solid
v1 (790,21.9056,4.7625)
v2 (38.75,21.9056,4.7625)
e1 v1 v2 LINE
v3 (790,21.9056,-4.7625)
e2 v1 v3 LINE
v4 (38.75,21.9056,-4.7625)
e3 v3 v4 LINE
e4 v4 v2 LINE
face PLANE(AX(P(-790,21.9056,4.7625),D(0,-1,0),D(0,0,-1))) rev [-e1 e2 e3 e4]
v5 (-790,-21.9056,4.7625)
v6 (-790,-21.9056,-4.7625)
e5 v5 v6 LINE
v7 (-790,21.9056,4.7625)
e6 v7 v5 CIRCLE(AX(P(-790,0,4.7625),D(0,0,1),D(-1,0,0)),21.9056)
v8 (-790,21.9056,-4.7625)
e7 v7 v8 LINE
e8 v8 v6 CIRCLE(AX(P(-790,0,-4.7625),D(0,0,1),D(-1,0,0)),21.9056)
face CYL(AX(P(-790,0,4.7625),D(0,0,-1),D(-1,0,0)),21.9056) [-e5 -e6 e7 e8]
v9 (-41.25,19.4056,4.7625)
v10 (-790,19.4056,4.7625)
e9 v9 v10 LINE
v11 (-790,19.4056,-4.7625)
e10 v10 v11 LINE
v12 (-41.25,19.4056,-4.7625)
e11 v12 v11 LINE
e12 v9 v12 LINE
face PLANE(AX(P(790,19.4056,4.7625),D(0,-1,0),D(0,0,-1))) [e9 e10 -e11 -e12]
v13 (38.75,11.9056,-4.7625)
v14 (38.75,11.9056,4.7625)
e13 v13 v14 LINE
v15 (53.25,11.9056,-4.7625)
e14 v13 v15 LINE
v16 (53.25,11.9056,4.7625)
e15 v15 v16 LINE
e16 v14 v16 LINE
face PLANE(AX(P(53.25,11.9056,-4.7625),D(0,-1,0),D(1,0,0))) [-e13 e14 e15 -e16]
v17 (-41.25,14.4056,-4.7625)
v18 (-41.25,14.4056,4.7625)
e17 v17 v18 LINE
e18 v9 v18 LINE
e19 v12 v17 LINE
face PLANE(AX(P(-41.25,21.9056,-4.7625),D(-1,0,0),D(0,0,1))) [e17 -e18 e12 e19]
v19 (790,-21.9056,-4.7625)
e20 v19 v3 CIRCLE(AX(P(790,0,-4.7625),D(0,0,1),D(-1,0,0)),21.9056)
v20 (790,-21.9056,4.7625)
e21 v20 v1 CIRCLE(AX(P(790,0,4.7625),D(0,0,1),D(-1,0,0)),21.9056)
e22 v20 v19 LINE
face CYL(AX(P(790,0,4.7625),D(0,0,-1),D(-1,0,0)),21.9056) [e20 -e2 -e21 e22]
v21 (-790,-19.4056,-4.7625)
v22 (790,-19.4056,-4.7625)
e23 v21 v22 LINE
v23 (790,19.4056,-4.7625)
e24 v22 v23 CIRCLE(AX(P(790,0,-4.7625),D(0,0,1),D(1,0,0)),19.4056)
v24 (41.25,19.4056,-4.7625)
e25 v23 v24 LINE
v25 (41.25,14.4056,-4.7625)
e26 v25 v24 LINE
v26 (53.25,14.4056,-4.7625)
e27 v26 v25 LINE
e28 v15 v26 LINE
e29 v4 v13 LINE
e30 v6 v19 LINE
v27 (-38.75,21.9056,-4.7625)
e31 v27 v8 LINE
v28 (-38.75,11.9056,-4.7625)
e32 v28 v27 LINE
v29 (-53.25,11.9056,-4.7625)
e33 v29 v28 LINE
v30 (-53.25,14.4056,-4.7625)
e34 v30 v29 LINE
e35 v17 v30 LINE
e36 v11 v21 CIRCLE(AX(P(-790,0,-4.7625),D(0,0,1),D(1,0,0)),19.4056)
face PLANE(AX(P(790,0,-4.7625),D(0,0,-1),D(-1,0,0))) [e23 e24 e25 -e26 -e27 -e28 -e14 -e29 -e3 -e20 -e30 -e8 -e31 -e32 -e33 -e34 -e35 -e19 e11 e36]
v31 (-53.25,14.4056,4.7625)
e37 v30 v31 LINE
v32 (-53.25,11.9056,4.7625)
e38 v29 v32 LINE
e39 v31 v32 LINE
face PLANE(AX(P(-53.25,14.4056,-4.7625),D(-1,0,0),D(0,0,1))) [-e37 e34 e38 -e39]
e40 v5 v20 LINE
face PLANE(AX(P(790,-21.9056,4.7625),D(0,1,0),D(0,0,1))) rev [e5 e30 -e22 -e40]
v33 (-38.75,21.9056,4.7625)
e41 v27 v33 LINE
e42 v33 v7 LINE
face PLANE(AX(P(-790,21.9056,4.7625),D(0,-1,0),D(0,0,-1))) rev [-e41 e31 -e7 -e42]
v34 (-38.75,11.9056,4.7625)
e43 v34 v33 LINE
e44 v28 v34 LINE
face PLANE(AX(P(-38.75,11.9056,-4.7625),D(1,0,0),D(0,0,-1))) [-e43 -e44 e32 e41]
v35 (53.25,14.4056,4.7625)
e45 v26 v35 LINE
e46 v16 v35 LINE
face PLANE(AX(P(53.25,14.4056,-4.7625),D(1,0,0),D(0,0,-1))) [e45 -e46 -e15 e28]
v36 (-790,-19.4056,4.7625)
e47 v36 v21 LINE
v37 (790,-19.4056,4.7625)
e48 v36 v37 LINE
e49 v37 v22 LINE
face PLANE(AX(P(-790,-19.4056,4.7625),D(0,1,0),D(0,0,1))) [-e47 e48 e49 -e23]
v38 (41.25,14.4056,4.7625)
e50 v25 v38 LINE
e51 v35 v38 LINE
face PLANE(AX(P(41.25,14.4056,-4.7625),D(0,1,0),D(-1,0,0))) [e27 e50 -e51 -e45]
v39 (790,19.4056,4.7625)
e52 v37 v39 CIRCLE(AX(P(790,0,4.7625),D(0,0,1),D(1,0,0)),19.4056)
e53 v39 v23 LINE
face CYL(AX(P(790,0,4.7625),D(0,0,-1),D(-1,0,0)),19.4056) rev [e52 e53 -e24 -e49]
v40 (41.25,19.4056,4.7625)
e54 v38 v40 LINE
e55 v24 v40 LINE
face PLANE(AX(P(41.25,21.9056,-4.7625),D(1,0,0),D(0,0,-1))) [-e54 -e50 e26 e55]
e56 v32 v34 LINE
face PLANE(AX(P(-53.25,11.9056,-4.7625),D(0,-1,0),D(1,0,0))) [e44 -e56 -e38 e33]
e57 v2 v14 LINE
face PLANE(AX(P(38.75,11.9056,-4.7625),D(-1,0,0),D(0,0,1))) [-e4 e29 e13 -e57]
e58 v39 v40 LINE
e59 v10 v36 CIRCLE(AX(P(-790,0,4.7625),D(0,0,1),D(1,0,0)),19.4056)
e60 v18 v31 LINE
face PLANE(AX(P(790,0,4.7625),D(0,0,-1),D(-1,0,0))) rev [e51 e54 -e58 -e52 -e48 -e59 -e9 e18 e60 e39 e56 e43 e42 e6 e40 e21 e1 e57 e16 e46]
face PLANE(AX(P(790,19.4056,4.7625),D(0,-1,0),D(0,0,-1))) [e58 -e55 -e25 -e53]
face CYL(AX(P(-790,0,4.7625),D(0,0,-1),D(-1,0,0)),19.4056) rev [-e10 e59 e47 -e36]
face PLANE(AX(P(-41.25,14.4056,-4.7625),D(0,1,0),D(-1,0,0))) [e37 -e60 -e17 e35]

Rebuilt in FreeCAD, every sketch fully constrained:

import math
import FreeCAD as App
import Part
import Sketcher


def add_polygon(sketch, points):
    """Adds a closed chain of lines whose ends are joined by coincident constraints."""
    first, n = sketch.GeometryCount, len(points)
    for a, b in zip(points, points[1:] + points[:1]):
        sketch.addGeometry(Part.LineSegment(App.Vector(*a, 0), App.Vector(*b, 0)), False)
    for i in range(n):
        sketch.addConstraint(Sketcher.Constraint("Coincident", first + i, 2, first + (i + 1) % n, 1))

doc = App.newDocument("Part")
body = doc.addObject("PartDesign::Body", "Body")

sketch1 = body.newObject("Sketcher::SketchObject", "Sketch")
sketch1.AttachmentSupport = (doc.getObject("XY_Plane"), [""])
sketch1.MapMode = "FlatFace"
sketch1.addGeometry([
    Part.LineSegment(App.Vector(790, 22, 0), App.Vector(-790, 22, 0)),
    Part.ArcOfCircle(Part.Circle(App.Vector(-790, 0, 0), App.Vector(0, 0, 1), 22), math.radians(90), math.radians(270)),
    Part.LineSegment(App.Vector(-790, -22, 0), App.Vector(790, -22, 0)),
    Part.ArcOfCircle(Part.Circle(App.Vector(790, 0, 0), App.Vector(0, 0, 1), 22), math.radians(-90), math.radians(90)),
    Part.ArcOfCircle(Part.Circle(App.Vector(-790, 0, 0), App.Vector(0, 0, 1), 19), math.radians(90), math.radians(270)),
    Part.LineSegment(App.Vector(-790, 19, 0), App.Vector(790, 19, 0)),
    Part.ArcOfCircle(Part.Circle(App.Vector(790, 0, 0), App.Vector(0, 0, 1), 19), math.radians(-90), math.radians(90)),
    Part.LineSegment(App.Vector(790, -19, 0), App.Vector(-790, -19, 0)),
], False)
sketch1.addConstraint([
    Sketcher.Constraint("Tangent", 0, 2, 1, 1),
    Sketcher.Constraint("Tangent", 1, 2, 2, 1),
    Sketcher.Constraint("Tangent", 2, 2, 3, 1),
    Sketcher.Constraint("Tangent", 3, 2, 0, 1),
    Sketcher.Constraint("Tangent", 4, 1, 5, 1),
    Sketcher.Constraint("Tangent", 5, 2, 6, 2),
    Sketcher.Constraint("Tangent", 6, 1, 7, 1),
    Sketcher.Constraint("Tangent", 7, 2, 4, 2),
    Sketcher.Constraint("Horizontal", 0),
    Sketcher.Constraint("Horizontal", 2),
    Sketcher.Constraint("Horizontal", 5),
    Sketcher.Constraint("Horizontal", 7),
    Sketcher.Constraint("Coincident", 4, 3, 1, 3),
    Sketcher.Constraint("Symmetric", 1, 3, 3, 3, -1, 1),
    Sketcher.Constraint("Vertical", 6, 3, 2, 2),
    Sketcher.Constraint("DistanceX", 0, 2, 0, 1, 1580.0),
    Sketcher.Constraint("Radius", 1, 21.9056),
    Sketcher.Constraint("Radius", 4, 19.4056),
])
pad1 = body.newObject("PartDesign::Pad", "Pad")
pad1.Profile = sketch1
pad1.Length = 9.525
pad1.Midplane = True

sketch2 = body.newObject("Sketcher::SketchObject", "Sketch001")
sketch2.AttachmentSupport = (doc.getObject("XY_Plane"), [""])
sketch2.MapMode = "FlatFace"
add_polygon(sketch2, [(-40, 21.9), (-40, 19.4), (40, 19.4), (40, 21.9)])
sketch2.addConstraint([
    Sketcher.Constraint("Vertical", 0),
    Sketcher.Constraint("Horizontal", 1),
    Sketcher.Constraint("Vertical", 2),
    Sketcher.Constraint("Horizontal", 3),
    Sketcher.Constraint("DistanceX", 1, 1, 1, 2, 80.0),
    Sketcher.Constraint("DistanceY", 0, 2, 0, 1, 2.5),
    Sketcher.Constraint("DistanceX", 0, 2, -1, 1, 40.0),
    Sketcher.Constraint("DistanceY", -1, 1, 0, 2, 19.4056),
])
pocket1 = body.newObject("PartDesign::Pocket", "Pocket")
pocket1.Profile = sketch2
pocket1.Length = 9.525
pocket1.Midplane = True

sketch3 = body.newObject("Sketcher::SketchObject", "Sketch002")
sketch3.AttachmentSupport = (doc.getObject("XY_Plane"), [""])
sketch3.MapMode = "FlatFace"
sketch3.AttachmentOffset = App.Placement(App.Vector(0, 0, 4.7625), App.Rotation())
add_polygon(sketch3, [(-38.8, 21.9), (-41.2, 21.9), (-41.2, 14.4), (-53.2, 14.4), (-53.2, 11.9), (-38.8, 11.9)])
add_polygon(sketch3, [(38.8, 11.9), (53.2, 11.9), (53.2, 14.4), (41.2, 14.4), (41.2, 21.9), (38.8, 21.9)])
sketch3.addConstraint([
    Sketcher.Constraint("Horizontal", 0),
    Sketcher.Constraint("Vertical", 1),
    Sketcher.Constraint("Horizontal", 2),
    Sketcher.Constraint("Vertical", 3),
    Sketcher.Constraint("Horizontal", 4),
    Sketcher.Constraint("Vertical", 5),
    Sketcher.Constraint("Horizontal", 6),
    Sketcher.Constraint("Vertical", 7),
    Sketcher.Constraint("Horizontal", 8),
    Sketcher.Constraint("Vertical", 9),
    Sketcher.Constraint("Horizontal", 10),
    Sketcher.Constraint("Vertical", 11),
    Sketcher.Constraint("Symmetric", 3, 2, 6, 2, -2),
    Sketcher.Constraint("Symmetric", 1, 2, 8, 2, -2),
    Sketcher.Constraint("Symmetric", 5, 2, 10, 2, -2),
    Sketcher.Constraint("Equal", 10, 3),
    Sketcher.Constraint("DistanceX", 2, 2, 2, 1, 12.0),
    Sketcher.Constraint("DistanceY", 5, 1, 5, 2, 10.0),
    Sketcher.Constraint("DistanceX", 0, 2, 0, 1, 2.5),
    Sketcher.Constraint("DistanceX", 4, 2, 6, 2, 92.0),
    Sketcher.Constraint("DistanceY", -1, 1, 0, 2, 21.9056),
])
pad2 = body.newObject("PartDesign::Pad", "Pad001")
pad2.Profile = sketch3
pad2.Length = 9.525
pad2.Reversed = True

doc.recompute()
